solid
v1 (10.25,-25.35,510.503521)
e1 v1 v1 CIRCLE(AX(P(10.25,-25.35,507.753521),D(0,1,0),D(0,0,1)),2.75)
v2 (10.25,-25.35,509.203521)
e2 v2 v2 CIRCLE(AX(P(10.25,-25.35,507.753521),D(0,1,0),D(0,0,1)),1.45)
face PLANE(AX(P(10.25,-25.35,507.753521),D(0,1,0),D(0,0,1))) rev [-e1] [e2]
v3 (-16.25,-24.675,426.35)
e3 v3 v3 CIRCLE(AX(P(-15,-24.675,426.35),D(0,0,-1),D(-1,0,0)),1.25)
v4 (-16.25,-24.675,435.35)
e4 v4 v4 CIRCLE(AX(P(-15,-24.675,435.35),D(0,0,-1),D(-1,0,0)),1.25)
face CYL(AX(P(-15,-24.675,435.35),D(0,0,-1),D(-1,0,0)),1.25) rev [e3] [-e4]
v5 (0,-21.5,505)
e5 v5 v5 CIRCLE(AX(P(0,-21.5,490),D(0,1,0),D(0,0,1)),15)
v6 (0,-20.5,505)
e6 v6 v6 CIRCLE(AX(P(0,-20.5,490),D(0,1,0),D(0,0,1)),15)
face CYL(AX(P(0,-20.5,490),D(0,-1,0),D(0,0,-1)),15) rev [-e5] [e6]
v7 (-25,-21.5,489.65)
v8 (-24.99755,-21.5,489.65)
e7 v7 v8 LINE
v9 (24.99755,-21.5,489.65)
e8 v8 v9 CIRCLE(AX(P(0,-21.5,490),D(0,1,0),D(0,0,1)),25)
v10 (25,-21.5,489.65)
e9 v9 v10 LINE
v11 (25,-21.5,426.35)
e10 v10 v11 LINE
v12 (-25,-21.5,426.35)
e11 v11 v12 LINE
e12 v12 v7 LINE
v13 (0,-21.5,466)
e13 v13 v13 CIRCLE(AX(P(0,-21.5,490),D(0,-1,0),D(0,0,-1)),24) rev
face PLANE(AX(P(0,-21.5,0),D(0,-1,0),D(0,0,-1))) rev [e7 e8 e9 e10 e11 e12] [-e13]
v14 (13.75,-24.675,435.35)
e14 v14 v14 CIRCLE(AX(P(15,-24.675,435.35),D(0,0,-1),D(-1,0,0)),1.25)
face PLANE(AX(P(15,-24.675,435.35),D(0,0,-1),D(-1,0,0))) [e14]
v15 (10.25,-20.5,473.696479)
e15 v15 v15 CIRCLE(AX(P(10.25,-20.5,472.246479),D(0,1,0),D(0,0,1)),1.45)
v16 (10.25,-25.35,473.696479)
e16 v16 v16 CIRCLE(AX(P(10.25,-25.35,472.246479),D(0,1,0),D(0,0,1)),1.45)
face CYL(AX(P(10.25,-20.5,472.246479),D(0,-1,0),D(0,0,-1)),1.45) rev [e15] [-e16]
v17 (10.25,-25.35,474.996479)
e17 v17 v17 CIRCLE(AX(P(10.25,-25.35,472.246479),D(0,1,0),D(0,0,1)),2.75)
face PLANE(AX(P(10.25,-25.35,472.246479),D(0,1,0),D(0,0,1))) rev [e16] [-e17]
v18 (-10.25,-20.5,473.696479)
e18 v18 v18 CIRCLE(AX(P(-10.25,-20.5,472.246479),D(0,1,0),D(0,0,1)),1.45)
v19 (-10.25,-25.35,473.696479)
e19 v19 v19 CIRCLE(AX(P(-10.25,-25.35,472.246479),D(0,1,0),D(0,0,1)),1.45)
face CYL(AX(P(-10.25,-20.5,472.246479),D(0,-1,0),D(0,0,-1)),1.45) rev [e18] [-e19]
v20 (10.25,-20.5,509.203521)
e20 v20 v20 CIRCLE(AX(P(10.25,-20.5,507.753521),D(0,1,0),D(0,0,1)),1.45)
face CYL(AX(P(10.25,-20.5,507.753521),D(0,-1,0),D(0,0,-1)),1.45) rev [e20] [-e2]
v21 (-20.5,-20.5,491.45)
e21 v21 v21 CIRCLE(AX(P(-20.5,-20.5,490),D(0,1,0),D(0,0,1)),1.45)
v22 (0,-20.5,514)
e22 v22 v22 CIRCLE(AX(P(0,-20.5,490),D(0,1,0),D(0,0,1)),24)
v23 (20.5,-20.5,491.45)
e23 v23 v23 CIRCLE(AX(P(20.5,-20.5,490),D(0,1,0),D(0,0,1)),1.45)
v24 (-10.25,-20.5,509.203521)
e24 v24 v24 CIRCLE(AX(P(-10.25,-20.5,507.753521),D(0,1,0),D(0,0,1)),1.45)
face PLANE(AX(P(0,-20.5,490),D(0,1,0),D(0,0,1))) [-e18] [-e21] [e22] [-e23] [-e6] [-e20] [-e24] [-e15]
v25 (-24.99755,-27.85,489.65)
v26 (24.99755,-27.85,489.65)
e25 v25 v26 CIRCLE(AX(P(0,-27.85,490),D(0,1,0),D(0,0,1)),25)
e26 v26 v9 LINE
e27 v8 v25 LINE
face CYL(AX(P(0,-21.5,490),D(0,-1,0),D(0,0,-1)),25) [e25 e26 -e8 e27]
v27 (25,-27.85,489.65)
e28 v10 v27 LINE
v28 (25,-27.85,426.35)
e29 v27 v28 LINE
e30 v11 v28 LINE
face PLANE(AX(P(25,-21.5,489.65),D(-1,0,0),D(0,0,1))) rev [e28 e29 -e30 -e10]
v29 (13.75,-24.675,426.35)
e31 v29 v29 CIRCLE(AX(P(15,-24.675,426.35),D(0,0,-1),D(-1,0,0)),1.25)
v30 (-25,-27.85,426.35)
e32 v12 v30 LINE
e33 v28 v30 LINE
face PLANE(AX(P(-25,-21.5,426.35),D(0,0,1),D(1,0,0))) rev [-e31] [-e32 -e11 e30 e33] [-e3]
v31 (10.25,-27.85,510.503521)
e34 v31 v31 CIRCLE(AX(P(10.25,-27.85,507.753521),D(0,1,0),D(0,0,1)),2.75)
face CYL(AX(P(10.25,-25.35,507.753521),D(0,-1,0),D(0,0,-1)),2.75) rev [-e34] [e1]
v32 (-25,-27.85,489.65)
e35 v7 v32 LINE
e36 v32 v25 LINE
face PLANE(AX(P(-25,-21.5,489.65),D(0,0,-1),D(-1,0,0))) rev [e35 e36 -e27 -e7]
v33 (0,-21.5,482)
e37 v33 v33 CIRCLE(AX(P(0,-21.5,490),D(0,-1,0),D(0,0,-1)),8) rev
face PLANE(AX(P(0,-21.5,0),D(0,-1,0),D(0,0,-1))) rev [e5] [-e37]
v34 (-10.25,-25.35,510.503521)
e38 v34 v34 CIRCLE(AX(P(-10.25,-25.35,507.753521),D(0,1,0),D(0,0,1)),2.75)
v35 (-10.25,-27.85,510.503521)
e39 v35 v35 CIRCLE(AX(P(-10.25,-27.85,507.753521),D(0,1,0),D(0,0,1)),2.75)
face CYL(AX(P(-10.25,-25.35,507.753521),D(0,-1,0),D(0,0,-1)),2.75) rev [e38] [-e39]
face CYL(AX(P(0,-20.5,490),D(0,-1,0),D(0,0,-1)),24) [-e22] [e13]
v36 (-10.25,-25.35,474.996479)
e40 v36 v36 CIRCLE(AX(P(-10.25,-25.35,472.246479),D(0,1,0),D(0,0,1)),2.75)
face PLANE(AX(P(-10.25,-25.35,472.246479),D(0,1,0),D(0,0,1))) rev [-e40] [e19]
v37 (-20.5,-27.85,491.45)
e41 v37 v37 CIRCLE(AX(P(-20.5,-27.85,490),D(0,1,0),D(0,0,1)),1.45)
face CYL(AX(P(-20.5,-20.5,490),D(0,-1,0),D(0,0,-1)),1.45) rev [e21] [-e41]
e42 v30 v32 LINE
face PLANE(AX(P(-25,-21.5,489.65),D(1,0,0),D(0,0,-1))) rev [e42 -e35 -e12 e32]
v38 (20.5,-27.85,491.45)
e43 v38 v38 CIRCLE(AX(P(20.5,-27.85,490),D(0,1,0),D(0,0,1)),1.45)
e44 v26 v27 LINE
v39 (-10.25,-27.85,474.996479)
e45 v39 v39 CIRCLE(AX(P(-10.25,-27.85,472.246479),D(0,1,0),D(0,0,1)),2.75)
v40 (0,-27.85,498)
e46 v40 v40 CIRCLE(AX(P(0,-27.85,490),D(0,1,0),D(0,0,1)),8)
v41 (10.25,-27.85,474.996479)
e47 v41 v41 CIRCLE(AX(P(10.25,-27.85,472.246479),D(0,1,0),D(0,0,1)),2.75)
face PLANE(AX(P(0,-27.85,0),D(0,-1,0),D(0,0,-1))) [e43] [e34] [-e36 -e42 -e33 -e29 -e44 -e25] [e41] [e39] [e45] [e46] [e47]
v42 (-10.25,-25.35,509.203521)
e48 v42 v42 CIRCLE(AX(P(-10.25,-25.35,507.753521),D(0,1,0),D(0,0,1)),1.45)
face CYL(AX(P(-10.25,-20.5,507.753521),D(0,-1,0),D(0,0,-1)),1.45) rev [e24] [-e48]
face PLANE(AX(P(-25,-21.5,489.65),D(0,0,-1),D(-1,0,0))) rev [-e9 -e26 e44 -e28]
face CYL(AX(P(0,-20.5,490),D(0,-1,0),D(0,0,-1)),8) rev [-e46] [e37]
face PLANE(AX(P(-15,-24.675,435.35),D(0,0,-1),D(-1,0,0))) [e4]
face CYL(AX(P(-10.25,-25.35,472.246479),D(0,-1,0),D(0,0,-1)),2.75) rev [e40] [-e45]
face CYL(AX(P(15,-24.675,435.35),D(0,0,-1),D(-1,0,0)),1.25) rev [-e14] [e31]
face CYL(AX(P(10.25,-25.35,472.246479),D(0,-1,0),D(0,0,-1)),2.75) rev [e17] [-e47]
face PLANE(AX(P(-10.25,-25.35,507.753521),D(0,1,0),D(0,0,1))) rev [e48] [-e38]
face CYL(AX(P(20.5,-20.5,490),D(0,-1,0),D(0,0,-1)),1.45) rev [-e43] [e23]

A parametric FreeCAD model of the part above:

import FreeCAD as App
import Part
import Sketcher

V = App.Vector

doc = App.newDocument("Part")
body = doc.addObject("PartDesign::Body", "Body")

sketch1 = body.newObject("Sketcher::SketchObject", "Sketch")
sketch1.AttachmentSupport = (doc.getObject("XZ_Plane"), [""])
sketch1.MapMode = "FlatFace"
sketch1.AttachmentOffset = App.Placement(V(0, 0, 27.85), App.Rotation())
sketch1.addGeometry([
    Part.LineSegment(V(-25, 426, 0), V(-25, 490, 0)),
    Part.LineSegment(V(-25, 490, 0), V(25, 490, 0)),
    Part.LineSegment(V(25, 490, 0), V(25, 426, 0)),
    Part.LineSegment(V(25, 426, 0), V(-25, 426, 0)),
], False)
sketch1.addConstraint([
    Sketcher.Constraint("Coincident", 0, 2, 1, 1),
    Sketcher.Constraint("Coincident", 1, 2, 2, 1),
    Sketcher.Constraint("Coincident", 2, 2, 3, 1),
    Sketcher.Constraint("Coincident", 3, 2, 0, 1),
    Sketcher.Constraint("Vertical", 0),
    Sketcher.Constraint("Horizontal", 1),
    Sketcher.Constraint("Vertical", 2),
    Sketcher.Constraint("Horizontal", 3),
    Sketcher.Constraint("DistanceX", 1, 1, 1, 2, 50.0),
    Sketcher.Constraint("DistanceY", 0, 1, 0, 2, 63.3),
    Sketcher.Constraint("DistanceX", 0, 2, -1, 1, 25.0),
    Sketcher.Constraint("DistanceY", -1, 1, 0, 2, 489.65),
])
pad1 = body.newObject("PartDesign::Pad", "Pad")
pad1.Profile = sketch1
pad1.Length = 6.35
pad1.Reversed = True

sketch2 = body.newObject("Sketcher::SketchObject", "Sketch001")
sketch2.AttachmentSupport = (doc.getObject("XZ_Plane"), [""])
sketch2.MapMode = "FlatFace"
sketch2.AttachmentOffset = App.Placement(V(0, 0, 27.85), App.Rotation())
sketch2.addGeometry(Part.Circle(V(0, 490, 0), V(0, 0, 1), 25), False)
sketch2.addConstraint([
    Sketcher.Constraint("PointOnObject", 0, 3, -2),
    Sketcher.Constraint("Diameter", 0, 50.0),
    Sketcher.Constraint("DistanceY", -1, 1, 0, 3, 490.0),
])
pad2 = body.newObject("PartDesign::Pad", "Pad001")
pad2.Profile = sketch2
pad2.Length = 6.35
pad2.Reversed = True

sketch3 = body.newObject("Sketcher::SketchObject", "Sketch002")
sketch3.AttachmentSupport = (doc.getObject("XZ_Plane"), [""])
sketch3.MapMode = "FlatFace"
sketch3.AttachmentOffset = App.Placement(V(0, 0, 21.5), App.Rotation())
sketch3.addGeometry([
    Part.Circle(V(0, 490, 0), V(0, 0, 1), 24),
    Part.Circle(V(0, 490, 0), V(0, 0, 1), 15),
], False)
sketch3.addConstraint([
    Sketcher.Constraint("Coincident", 1, 3, 0, 3),
    Sketcher.Constraint("PointOnObject", 0, 3, -2),
    Sketcher.Constraint("Diameter", 0, 48.0),
    Sketcher.Constraint("Diameter", 1, 30.0),
    Sketcher.Constraint("DistanceY", -1, 1, 0, 3, 490.0),
])
pad3 = body.newObject("PartDesign::Pad", "Pad002")
pad3.Profile = sketch3
pad3.Length = 1
pad3.Reversed = True

sketch4 = body.newObject("Sketcher::SketchObject", "Sketch003")
sketch4.AttachmentSupport = (doc.getObject("XZ_Plane"), [""])
sketch4.MapMode = "FlatFace"
sketch4.AttachmentOffset = App.Placement(V(0, 0, 27.85), App.Rotation())
sketch4.addGeometry(Part.Circle(V(0, 490, 0), V(0, 0, 1), 8), False)
sketch4.addConstraint([
    Sketcher.Constraint("PointOnObject", 0, 3, -2),
    Sketcher.Constraint("Diameter", 0, 16.0),
    Sketcher.Constraint("DistanceY", -1, 1, 0, 3, 490.0),
])
pocket1 = body.newObject("PartDesign::Pocket", "Pocket")
pocket1.Profile = sketch4
pocket1.Length = 7.35

sketch5 = body.newObject("Sketcher::SketchObject", "Sketch004")
sketch5.AttachmentSupport = (doc.getObject("XZ_Plane"), [""])
sketch5.MapMode = "FlatFace"
sketch5.AttachmentOffset = App.Placement(V(0, 0, 27.85), App.Rotation())
sketch5.addGeometry([
    Part.Circle(V(20.5, 490, 0), V(0, 0, 1), 1.4),
    Part.Circle(V(10.2, 507.8, 0), V(0, 0, 1), 1.4),
    Part.Circle(V(-10.2, 507.8, 0), V(0, 0, 1), 1.4),
    Part.Circle(V(-20.5, 490, 0), V(0, 0, 1), 1.4),
    Part.Circle(V(-10.2, 472.2, 0), V(0, 0, 1), 1.4),
    Part.Circle(V(10.2, 472.2, 0), V(0, 0, 1), 1.4),
], False)
sketch5.addConstraint([
    Sketcher.Constraint("Equal", 0, 1),
    Sketcher.Constraint("Equal", 1, 2),
    Sketcher.Constraint("Equal", 2, 3),
    Sketcher.Constraint("Equal", 3, 4),
    Sketcher.Constraint("Equal", 4, 5),
    Sketcher.Constraint("Symmetric", 1, 3, 2, 3, -2),
    Sketcher.Constraint("Symmetric", 0, 3, 3, 3, -2),
    Sketcher.Constraint("Symmetric", 4, 3, 5, 3, -2),
    Sketcher.Constraint("Vertical", 2, 3, 4, 3),
    Sketcher.Constraint("Diameter", 0, 2.9),
    Sketcher.Constraint("DistanceY", -1, 1, 0, 3, 490.0),
    Sketcher.Constraint("DistanceX", 3, 3, 0, 3, 41.0),
    Sketcher.Constraint("DistanceX", 2, 3, 1, 3, 20.5),
    Sketcher.Constraint("DistanceY", -1, 1, 1, 3, 507.753521),
    Sketcher.Constraint("DistanceY", -1, 1, 4, 3, 472.246479),
])
pocket2 = body.newObject("PartDesign::Pocket", "Pocket001")
pocket2.Profile = sketch5
pocket2.Length = 7.35

sketch6 = body.newObject("Sketcher::SketchObject", "Sketch005")
sketch6.AttachmentSupport = (doc.getObject("XZ_Plane"), [""])
sketch6.MapMode = "FlatFace"
sketch6.AttachmentOffset = App.Placement(V(0, 0, 27.85), App.Rotation())
sketch6.addGeometry([
    Part.Circle(V(10.2, 507.8, 0), V(0, 0, 1), 2.8),
    Part.Circle(V(-10.2, 507.8, 0), V(0, 0, 1), 2.8),
    Part.Circle(V(-10.2, 472.2, 0), V(0, 0, 1), 2.8),
    Part.Circle(V(10.2, 472.2, 0), V(0, 0, 1), 2.8),
], False)
sketch6.addConstraint([
    Sketcher.Constraint("Equal", 0, 1),
    Sketcher.Constraint("Equal", 1, 2),
    Sketcher.Constraint("Equal", 2, 3),
    Sketcher.Constraint("Symmetric", 0, 3, 1, 3, -2),
    Sketcher.Constraint("Symmetric", 2, 3, 3, 3, -2),
    Sketcher.Constraint("Vertical", 1, 3, 2, 3),
    Sketcher.Constraint("Diameter", 0, 5.5),
    Sketcher.Constraint("DistanceX", 1, 3, 0, 3, 20.5),
    Sketcher.Constraint("DistanceY", -1, 1, 0, 3, 507.753521),
    Sketcher.Constraint("DistanceY", -1, 1, 2, 3, 472.246479),
])
pocket3 = body.newObject("PartDesign::Pocket", "Pocket002")
pocket3.Profile = sketch6
pocket3.Length = 2.5

sketch7 = body.newObject("Sketcher::SketchObject", "Sketch006")
sketch7.AttachmentSupport = (doc.getObject("XY_Plane"), [""])
sketch7.MapMode = "FlatFace"
sketch7.AttachmentOffset = App.Placement(V(0, 0, 426.35), App.Rotation())
sketch7.addGeometry([
    Part.Circle(V(-15, -24.7, 0), V(0, 0, 1), 1.2),
    Part.Circle(V(15, -24.7, 0), V(0, 0, 1), 1.2),
], False)
sketch7.addConstraint([
    Sketcher.Constraint("Equal", 0, 1),
    Sketcher.Constraint("Symmetric", 0, 3, 1, 3, -2),
    Sketcher.Constraint("Diameter", 0, 2.5),
    Sketcher.Constraint("DistanceX", 0, 3, -1, 1, 15.0),
    Sketcher.Constraint("DistanceY", 0, 3, -1, 1, 24.675),
])
pocket4 = body.newObject("PartDesign::Pocket", "Pocket003")
pocket4.Profile = sketch7
pocket4.Length = 9
pocket4.Reversed = True

doc.recompute()
